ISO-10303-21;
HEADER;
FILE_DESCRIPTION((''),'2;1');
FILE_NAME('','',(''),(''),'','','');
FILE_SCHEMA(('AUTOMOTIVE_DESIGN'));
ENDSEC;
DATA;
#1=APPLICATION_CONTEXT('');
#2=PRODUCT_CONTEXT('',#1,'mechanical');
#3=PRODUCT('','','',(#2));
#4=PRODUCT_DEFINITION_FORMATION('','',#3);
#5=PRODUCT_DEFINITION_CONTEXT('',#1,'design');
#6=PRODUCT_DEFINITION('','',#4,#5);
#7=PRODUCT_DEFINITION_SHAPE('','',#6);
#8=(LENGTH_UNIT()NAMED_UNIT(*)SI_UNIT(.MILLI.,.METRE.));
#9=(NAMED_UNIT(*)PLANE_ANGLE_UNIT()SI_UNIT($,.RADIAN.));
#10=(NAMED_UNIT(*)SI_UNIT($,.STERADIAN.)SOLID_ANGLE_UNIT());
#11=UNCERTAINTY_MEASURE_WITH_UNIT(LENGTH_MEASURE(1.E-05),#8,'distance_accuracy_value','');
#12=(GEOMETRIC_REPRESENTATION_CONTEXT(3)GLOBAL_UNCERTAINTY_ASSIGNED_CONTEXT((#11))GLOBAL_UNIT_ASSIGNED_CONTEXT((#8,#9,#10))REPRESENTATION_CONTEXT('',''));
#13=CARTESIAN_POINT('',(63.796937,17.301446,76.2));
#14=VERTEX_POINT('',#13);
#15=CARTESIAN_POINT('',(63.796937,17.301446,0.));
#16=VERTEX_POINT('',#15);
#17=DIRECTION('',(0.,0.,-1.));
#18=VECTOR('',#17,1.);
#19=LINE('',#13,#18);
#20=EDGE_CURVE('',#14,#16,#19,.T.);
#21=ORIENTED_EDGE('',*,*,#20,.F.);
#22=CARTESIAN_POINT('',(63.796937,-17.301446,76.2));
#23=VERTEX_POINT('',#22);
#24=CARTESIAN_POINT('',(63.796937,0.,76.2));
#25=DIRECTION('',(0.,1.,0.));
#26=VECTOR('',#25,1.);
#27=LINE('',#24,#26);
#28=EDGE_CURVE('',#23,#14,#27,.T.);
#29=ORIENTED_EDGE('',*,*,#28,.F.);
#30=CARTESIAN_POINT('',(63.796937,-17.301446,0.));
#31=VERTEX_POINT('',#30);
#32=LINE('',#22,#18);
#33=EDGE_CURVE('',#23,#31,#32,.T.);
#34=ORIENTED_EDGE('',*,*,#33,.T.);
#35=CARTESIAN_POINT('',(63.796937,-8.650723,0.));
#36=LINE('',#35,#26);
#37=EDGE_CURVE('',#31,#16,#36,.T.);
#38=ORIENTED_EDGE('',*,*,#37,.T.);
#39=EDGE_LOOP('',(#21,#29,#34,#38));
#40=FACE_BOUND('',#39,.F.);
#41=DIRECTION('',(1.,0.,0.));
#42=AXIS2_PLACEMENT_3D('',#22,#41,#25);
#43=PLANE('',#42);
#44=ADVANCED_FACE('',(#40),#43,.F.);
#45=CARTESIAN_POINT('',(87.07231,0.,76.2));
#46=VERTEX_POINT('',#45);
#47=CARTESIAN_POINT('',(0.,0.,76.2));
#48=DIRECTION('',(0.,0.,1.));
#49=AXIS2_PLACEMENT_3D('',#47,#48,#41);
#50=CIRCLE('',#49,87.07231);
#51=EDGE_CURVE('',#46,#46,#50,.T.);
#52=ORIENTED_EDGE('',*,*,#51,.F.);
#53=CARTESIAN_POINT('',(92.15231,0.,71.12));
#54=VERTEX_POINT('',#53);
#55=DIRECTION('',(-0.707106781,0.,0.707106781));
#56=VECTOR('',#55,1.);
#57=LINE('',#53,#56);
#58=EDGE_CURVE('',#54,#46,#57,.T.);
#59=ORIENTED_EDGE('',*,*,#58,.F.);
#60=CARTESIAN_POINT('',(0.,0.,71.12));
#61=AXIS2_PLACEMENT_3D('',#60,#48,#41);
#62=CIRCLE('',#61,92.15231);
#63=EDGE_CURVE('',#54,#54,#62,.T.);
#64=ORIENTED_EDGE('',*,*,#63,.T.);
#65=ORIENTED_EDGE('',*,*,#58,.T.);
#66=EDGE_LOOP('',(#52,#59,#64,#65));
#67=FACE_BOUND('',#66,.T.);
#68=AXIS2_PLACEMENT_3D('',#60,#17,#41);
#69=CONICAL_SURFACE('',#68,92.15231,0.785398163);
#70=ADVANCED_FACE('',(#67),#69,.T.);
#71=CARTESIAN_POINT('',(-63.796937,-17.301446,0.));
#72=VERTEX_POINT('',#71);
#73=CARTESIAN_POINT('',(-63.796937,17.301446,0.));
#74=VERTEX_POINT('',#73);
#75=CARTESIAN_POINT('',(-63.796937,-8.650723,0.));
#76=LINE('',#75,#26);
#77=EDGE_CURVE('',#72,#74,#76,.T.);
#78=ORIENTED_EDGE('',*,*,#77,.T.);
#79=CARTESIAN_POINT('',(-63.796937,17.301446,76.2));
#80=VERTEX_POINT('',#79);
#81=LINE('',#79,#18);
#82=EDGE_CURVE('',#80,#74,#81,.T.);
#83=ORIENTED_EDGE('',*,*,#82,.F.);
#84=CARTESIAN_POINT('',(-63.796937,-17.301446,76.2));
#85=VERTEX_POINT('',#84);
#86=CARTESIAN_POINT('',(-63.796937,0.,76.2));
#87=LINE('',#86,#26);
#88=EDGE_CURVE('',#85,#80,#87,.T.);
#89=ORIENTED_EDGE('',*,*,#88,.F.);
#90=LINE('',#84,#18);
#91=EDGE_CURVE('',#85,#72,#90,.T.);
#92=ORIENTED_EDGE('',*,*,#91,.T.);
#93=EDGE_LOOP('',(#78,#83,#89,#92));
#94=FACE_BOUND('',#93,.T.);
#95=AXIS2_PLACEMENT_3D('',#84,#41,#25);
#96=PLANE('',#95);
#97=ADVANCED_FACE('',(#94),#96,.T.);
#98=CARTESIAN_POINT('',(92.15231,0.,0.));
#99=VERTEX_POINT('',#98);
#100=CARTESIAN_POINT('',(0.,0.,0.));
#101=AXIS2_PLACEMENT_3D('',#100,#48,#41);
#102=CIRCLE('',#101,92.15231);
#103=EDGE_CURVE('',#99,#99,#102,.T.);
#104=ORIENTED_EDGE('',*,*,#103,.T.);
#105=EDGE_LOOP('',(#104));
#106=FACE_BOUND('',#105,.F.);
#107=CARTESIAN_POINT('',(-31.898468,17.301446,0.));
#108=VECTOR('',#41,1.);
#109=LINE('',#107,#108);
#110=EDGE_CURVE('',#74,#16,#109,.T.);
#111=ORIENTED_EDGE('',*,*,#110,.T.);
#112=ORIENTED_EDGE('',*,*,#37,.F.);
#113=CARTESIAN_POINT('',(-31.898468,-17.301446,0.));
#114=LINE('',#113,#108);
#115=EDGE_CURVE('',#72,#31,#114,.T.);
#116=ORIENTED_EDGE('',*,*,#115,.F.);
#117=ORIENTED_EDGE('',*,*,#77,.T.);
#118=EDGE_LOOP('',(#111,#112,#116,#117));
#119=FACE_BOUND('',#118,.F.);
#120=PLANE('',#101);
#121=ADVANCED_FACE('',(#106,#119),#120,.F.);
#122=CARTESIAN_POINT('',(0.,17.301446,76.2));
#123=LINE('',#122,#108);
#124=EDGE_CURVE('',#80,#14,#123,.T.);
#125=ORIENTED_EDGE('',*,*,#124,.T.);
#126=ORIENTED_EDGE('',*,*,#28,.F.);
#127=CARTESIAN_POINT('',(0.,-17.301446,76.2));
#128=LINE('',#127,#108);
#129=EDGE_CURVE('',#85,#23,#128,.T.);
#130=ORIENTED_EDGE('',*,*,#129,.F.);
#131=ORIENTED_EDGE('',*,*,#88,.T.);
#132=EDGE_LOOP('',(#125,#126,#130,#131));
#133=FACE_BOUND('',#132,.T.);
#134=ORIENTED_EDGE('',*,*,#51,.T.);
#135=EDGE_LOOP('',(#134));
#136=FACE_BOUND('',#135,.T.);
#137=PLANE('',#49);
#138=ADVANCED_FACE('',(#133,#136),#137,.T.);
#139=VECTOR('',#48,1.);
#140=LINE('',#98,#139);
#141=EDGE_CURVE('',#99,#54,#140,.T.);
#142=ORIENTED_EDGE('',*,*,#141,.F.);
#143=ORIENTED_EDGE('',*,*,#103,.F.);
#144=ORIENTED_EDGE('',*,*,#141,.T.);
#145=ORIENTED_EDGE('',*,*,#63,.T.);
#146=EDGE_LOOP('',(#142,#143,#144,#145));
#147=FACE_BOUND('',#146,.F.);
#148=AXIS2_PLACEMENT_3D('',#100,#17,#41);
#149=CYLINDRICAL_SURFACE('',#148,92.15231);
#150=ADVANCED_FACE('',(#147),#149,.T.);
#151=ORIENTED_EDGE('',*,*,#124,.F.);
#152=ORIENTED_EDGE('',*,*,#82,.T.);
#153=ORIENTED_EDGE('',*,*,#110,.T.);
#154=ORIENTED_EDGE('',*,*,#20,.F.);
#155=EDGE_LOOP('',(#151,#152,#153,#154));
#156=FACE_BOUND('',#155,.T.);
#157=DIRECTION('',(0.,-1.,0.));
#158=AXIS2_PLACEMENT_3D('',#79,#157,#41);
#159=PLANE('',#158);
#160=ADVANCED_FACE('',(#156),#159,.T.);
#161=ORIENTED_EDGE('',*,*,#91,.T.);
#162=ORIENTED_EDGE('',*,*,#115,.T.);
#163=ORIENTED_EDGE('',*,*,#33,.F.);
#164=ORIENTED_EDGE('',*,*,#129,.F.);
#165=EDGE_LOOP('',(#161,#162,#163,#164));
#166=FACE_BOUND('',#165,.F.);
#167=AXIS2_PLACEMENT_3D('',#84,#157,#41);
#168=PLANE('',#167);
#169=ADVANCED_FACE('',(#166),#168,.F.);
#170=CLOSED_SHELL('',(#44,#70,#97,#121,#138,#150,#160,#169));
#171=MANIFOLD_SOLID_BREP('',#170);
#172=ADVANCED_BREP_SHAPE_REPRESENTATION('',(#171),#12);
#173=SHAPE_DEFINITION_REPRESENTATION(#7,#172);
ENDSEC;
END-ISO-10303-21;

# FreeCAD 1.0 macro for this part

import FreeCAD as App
import Part
import Sketcher
from FreeCAD import Vector


def edges_at(feature, points):
    """Names of the edges that pass closest to the given points."""
    edges = feature.Shape.Edges
    near = lambda p: min(range(len(edges)), key=lambda i: edges[i].distToShape(Part.Vertex(*p))[0])
    return sorted({f"Edge{near(p) + 1}" for p in points})

doc = App.newDocument("Part")
params = doc.addObject("Spreadsheet::Sheet", "Params")
for row, (alias, value) in enumerate([
    ("pad1_length", "3 in"),
    ("chamfer_size", "0.2 in"),
    ("pocket1_length", "4.55 in"),
], start=1):
    params.set(f"A{row}", alias)
    params.set(f"B{row}", "=" + value)
    params.setAlias(f"B{row}", alias)

body = doc.addObject("PartDesign::Body", "Body")

sketch1 = body.newObject("Sketcher::SketchObject", "Sketch")
sketch1.AttachmentSupport = (doc.getObject("XY_Plane"), [""])
sketch1.MapMode = "FlatFace"
sketch1.addGeometry(Part.Circle(Vector(0, 0, 0), Vector(0, 0, 1), 92), False)
sketch1.addConstraint(Sketcher.Constraint("Coincident", 0, 3, -1, 1))
sketch1.addConstraint(Sketcher.Constraint("Diameter", 0, 184.30462))
pad1 = body.newObject("PartDesign::Pad", "Pad")
pad1.Profile = sketch1
pad1.setExpression("Length", "Params.pad1_length")
doc.recompute()

chamfer = body.newObject("PartDesign::Chamfer", "Chamfer")
chamfer.Base = (pad1, edges_at(pad1, [(-92.152, 0, 76.2)]))
chamfer.setExpression("Size", "Params.chamfer_size")

sketch2 = body.newObject("Sketcher::SketchObject", "Sketch001")
sketch2.AttachmentSupport = (doc.getObject("XY_Plane"), [""])
sketch2.MapMode = "FlatFace"
sketch2.AttachmentOffset = App.Placement(Vector(0, 0, 3 * 25.4), App.Rotation())
sketch2.addGeometry(Part.LineSegment(Vector(-64, 17, 0), Vector(-64, -17, 0)), False)
sketch2.addGeometry(Part.LineSegment(Vector(-64, -17, 0), Vector(64, -17, 0)), False)
sketch2.addGeometry(Part.LineSegment(Vector(64, -17, 0), Vector(64, 17, 0)), False)
sketch2.addGeometry(Part.LineSegment(Vector(64, 17, 0), Vector(-64, 17, 0)), False)
sketch2.addConstraint(Sketcher.Constraint("Coincident", 0, 2, 1, 1))
sketch2.addConstraint(Sketcher.Constraint("Coincident", 1, 2, 2, 1))
sketch2.addConstraint(Sketcher.Constraint("Coincident", 2, 2, 3, 1))
sketch2.addConstraint(Sketcher.Constraint("Coincident", 3, 2, 0, 1))
sketch2.addConstraint(Sketcher.Constraint("Vertical", 0))
sketch2.addConstraint(Sketcher.Constraint("Horizontal", 1))
sketch2.addConstraint(Sketcher.Constraint("Vertical", 2))
sketch2.addConstraint(Sketcher.Constraint("Horizontal", 3))
sketch2.addConstraint(Sketcher.Constraint("Symmetric", 0, 2, 2, 2, -1, 1))
sketch2.addConstraint(Sketcher.Constraint("DistanceY", 0, 2, 0, 1, 34.602892))
sketch2.addConstraint(Sketcher.Constraint("DistanceX", 1, 1, 1, 2, 127.593874))
pocket1 = body.newObject("PartDesign::Pocket", "Pocket")
pocket1.Profile = sketch2
pocket1.setExpression("Length", "Params.pocket1_length")

doc.recompute()
